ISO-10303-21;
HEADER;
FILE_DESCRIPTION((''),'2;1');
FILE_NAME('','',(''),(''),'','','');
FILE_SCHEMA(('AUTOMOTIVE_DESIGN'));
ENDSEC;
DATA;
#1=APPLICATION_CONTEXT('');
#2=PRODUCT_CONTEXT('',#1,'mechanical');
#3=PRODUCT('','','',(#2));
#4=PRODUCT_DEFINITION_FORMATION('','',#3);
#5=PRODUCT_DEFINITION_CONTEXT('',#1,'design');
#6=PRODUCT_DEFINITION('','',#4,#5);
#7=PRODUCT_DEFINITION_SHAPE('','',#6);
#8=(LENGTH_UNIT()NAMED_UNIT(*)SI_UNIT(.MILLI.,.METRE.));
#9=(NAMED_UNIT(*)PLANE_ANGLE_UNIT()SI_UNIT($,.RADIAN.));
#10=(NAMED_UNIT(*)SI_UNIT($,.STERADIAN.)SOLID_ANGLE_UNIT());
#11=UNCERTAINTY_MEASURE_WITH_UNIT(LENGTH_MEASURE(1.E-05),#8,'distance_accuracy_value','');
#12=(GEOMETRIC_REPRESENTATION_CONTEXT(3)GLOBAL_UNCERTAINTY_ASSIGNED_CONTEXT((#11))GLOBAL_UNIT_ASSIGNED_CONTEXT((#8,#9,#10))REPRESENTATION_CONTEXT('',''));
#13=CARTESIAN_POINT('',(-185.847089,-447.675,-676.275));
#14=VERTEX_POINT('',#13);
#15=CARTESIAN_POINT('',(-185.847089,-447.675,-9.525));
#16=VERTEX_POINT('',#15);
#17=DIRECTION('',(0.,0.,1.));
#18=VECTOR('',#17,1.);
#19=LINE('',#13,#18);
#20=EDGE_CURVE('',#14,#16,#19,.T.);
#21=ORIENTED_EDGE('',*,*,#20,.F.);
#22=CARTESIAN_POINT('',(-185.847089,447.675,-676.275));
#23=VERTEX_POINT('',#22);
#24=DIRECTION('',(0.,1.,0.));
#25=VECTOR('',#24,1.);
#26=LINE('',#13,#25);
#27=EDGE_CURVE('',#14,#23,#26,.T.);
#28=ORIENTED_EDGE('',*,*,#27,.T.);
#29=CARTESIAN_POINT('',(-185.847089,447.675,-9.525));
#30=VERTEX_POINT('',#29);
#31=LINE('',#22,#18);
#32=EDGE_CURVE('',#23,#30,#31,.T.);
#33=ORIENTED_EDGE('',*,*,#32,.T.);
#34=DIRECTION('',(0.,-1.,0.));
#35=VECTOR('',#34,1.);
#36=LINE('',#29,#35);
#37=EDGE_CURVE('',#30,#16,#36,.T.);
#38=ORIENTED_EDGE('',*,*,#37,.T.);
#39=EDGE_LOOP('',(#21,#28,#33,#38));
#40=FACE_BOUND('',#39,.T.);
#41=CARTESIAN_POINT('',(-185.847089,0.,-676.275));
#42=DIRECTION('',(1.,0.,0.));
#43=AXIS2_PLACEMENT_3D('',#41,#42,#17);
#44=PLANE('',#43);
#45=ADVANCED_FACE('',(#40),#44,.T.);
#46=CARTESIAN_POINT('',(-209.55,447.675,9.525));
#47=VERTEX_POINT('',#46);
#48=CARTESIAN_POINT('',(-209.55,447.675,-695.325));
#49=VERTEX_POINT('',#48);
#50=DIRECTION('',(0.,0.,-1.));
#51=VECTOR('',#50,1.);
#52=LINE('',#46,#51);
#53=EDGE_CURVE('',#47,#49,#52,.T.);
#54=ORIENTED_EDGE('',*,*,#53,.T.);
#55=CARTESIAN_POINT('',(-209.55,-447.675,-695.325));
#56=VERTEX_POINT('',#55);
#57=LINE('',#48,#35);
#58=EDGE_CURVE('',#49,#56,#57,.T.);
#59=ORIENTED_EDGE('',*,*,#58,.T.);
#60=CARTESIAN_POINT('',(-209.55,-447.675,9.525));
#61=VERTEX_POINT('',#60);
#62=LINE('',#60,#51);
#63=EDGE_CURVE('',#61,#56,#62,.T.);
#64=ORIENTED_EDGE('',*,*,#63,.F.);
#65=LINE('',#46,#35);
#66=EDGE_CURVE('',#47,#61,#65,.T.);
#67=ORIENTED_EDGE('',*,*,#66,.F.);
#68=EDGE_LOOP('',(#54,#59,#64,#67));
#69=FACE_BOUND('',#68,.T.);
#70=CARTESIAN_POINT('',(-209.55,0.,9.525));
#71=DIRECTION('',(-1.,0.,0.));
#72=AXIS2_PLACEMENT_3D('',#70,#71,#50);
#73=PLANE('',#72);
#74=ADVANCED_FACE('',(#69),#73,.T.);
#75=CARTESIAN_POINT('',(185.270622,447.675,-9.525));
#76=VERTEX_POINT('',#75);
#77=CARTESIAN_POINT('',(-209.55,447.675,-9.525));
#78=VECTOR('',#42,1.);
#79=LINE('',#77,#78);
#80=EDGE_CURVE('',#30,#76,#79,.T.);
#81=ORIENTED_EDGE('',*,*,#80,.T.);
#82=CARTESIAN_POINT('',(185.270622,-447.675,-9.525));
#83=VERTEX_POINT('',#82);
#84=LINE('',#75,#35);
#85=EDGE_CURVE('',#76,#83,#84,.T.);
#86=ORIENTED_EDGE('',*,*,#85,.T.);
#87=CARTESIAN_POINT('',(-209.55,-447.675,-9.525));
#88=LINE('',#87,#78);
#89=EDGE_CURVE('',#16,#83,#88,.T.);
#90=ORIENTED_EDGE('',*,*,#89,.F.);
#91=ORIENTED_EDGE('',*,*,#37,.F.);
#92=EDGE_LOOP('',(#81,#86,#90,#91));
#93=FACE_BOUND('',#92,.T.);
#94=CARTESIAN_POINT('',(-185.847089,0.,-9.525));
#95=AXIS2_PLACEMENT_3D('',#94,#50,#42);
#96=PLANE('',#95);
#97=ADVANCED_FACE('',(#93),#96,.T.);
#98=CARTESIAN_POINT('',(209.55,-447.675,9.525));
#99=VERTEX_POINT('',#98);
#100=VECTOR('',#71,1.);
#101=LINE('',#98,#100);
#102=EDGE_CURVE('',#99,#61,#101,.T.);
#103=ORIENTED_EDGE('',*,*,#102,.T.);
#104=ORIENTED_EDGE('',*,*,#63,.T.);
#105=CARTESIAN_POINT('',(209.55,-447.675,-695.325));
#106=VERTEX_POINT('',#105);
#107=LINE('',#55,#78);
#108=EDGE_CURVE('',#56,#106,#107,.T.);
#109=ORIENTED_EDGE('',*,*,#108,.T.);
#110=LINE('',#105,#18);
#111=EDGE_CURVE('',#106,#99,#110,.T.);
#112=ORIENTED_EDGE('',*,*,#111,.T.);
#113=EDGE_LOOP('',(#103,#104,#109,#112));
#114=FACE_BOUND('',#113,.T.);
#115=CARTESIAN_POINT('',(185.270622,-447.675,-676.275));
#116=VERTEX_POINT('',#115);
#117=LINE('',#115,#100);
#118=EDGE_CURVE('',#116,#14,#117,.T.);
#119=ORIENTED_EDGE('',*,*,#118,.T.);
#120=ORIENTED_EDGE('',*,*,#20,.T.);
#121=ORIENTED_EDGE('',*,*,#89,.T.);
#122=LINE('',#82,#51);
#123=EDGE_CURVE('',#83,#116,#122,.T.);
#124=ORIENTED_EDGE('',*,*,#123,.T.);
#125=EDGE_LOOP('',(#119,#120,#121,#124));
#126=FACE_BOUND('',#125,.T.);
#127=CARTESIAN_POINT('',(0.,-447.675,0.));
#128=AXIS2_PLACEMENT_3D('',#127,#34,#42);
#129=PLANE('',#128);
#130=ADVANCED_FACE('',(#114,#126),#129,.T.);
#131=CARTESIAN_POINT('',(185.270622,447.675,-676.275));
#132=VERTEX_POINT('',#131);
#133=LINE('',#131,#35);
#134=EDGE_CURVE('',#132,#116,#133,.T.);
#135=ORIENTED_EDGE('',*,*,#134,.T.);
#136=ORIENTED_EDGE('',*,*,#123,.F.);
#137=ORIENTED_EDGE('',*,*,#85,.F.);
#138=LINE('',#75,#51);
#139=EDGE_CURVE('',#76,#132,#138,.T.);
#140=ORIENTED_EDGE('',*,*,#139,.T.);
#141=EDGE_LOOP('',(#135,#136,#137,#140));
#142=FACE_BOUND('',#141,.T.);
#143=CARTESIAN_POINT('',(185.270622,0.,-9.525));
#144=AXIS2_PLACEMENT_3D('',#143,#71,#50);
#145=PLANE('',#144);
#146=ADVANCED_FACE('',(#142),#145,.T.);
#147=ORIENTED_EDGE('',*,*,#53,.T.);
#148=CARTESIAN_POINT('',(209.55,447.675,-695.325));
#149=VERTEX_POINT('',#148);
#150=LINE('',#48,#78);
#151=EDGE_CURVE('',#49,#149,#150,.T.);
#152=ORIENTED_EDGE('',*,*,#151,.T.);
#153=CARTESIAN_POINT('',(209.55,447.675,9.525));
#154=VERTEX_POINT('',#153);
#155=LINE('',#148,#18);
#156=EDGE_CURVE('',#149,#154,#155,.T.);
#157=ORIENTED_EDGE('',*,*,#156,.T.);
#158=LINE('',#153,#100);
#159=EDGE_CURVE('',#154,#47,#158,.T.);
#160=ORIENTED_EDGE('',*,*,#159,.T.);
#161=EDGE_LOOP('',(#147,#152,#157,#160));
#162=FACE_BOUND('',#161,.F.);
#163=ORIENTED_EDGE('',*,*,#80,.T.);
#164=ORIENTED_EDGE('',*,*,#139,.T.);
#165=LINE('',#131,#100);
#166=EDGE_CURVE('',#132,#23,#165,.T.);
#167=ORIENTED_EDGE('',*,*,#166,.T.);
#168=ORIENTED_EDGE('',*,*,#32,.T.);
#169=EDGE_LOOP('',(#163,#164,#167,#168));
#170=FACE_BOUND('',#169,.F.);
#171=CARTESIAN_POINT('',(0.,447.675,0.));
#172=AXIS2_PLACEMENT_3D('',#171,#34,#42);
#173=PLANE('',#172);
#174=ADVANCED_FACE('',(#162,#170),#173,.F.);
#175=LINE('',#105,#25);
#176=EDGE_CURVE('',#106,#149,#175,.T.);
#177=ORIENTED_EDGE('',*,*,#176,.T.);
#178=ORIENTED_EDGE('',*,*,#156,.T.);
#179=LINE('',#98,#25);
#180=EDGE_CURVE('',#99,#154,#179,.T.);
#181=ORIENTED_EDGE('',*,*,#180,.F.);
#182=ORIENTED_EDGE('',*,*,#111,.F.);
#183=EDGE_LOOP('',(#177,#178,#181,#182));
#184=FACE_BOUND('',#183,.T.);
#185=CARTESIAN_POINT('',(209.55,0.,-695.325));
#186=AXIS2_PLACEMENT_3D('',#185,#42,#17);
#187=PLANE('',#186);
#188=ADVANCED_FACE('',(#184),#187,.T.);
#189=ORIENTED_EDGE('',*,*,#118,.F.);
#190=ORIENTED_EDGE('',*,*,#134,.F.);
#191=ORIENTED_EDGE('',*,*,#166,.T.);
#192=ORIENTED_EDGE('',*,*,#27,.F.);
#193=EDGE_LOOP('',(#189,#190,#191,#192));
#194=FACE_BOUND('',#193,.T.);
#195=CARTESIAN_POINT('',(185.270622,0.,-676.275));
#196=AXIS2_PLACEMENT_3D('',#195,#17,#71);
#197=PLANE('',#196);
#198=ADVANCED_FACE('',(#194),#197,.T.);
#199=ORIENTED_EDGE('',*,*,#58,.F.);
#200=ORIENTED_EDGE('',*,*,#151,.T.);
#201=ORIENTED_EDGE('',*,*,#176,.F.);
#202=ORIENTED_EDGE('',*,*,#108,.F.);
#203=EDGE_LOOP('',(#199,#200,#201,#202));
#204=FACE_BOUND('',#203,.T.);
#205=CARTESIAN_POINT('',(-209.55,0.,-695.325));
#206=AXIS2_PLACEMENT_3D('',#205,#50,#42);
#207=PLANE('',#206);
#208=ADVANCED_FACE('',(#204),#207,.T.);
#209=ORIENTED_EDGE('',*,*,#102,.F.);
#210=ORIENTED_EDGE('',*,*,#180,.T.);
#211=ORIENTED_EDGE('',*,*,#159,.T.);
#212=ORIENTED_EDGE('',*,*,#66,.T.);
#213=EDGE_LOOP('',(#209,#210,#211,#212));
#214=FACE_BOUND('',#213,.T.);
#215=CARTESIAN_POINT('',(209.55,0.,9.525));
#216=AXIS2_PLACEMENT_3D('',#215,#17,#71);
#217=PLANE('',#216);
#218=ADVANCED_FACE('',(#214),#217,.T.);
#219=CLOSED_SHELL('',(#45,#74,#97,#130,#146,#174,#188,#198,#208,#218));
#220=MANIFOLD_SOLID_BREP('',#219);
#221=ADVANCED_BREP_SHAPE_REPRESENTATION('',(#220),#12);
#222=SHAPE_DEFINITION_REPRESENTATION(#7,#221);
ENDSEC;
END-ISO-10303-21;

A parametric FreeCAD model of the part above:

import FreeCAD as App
import Part
import Sketcher
from FreeCAD import Vector
Q = App.Units.Quantity

doc = App.newDocument("Part")
params = doc.addObject("Spreadsheet::Sheet", "Params")
for row, (alias, value) in enumerate([
    ("sketch1_width", "16.5 in"),
    ("sketch1_height", "27.75 in"),
    ("pad1_length", "35.25 in"),
], start=1):
    params.set(f"A{row}", alias)
    params.set(f"B{row}", "=" + value)
    params.setAlias(f"B{row}", alias)

body = doc.addObject("PartDesign::Body", "Body")

# Sketch on XZ plane
sketch1 = body.newObject("Sketcher::SketchObject", "Sketch")
sketch1.AttachmentSupport = (doc.getObject("XZ_Plane"), [""])
sketch1.MapMode = "FlatFace"
sketch1.addGeometry(Part.LineSegment(Vector(210, 10, 0), Vector(-210, 10, 0)), False)
sketch1.addGeometry(Part.LineSegment(Vector(-210, 10, 0), Vector(-210, -695, 0)), False)
sketch1.addGeometry(Part.LineSegment(Vector(-210, -695, 0), Vector(210, -695, 0)), False)
sketch1.addGeometry(Part.LineSegment(Vector(210, -695, 0), Vector(210, 10, 0)), False)
sketch1.addGeometry(Part.LineSegment(Vector(-186, -676, 0), Vector(-186, -10, 0)), False)
sketch1.addGeometry(Part.LineSegment(Vector(-186, -10, 0), Vector(185, -10, 0)), False)
sketch1.addGeometry(Part.LineSegment(Vector(185, -10, 0), Vector(185, -676, 0)), False)
sketch1.addGeometry(Part.LineSegment(Vector(185, -676, 0), Vector(-186, -676, 0)), False)
sketch1.addConstraint(Sketcher.Constraint("Coincident", 0, 2, 1, 1))
sketch1.addConstraint(Sketcher.Constraint("Coincident", 1, 2, 2, 1))
sketch1.addConstraint(Sketcher.Constraint("Coincident", 2, 2, 3, 1))
sketch1.addConstraint(Sketcher.Constraint("Coincident", 3, 2, 0, 1))
sketch1.addConstraint(Sketcher.Constraint("Coincident", 4, 2, 5, 1))
sketch1.addConstraint(Sketcher.Constraint("Coincident", 5, 2, 6, 1))
sketch1.addConstraint(Sketcher.Constraint("Coincident", 6, 2, 7, 1))
sketch1.addConstraint(Sketcher.Constraint("Coincident", 7, 2, 4, 1))
sketch1.addConstraint(Sketcher.Constraint("Horizontal", 0))
sketch1.addConstraint(Sketcher.Constraint("Vertical", 1))
sketch1.addConstraint(Sketcher.Constraint("Horizontal", 2))
sketch1.addConstraint(Sketcher.Constraint("Vertical", 3))
sketch1.addConstraint(Sketcher.Constraint("Vertical", 4))
sketch1.addConstraint(Sketcher.Constraint("Horizontal", 5))
sketch1.addConstraint(Sketcher.Constraint("Vertical", 6))
sketch1.addConstraint(Sketcher.Constraint("Horizontal", 7))
sketch1.addConstraint(Sketcher.Constraint("DistanceX", 0, 2, 0, 1, Q("16.5 in")))
sketch1.addConstraint(Sketcher.Constraint("DistanceY", 1, 2, 4, 2, Q("27 in")))
sketch1.addConstraint(Sketcher.Constraint("DistanceY", 6, 2, 3, 2, Q("27 in")))
sketch1.addConstraint(Sketcher.Constraint("DistanceY", 1, 2, 1, 1, Q("27.75 in")))
sketch1.addConstraint(Sketcher.Constraint("DistanceX", 0, 2, -1, 1, Q("8.25 in")))
sketch1.addConstraint(Sketcher.Constraint("DistanceY", -1, 1, 0, 2, Q("0.375 in")))
sketch1.addConstraint(Sketcher.Constraint("DistanceX", 5, 1, 5, 2, 371.117711))
sketch1.addConstraint(Sketcher.Constraint("DistanceX", 4, 2, -1, 1, 185.847089))
sketch1.setExpression("Constraints[16]", "Params.sketch1_width")
sketch1.setExpression("Constraints[19]", "Params.sketch1_height")
pad1 = body.newObject("PartDesign::Pad", "Pad")
pad1.Profile = sketch1
pad1.setExpression("Length", "Params.pad1_length")
pad1.Midplane = True

doc.recompute()
